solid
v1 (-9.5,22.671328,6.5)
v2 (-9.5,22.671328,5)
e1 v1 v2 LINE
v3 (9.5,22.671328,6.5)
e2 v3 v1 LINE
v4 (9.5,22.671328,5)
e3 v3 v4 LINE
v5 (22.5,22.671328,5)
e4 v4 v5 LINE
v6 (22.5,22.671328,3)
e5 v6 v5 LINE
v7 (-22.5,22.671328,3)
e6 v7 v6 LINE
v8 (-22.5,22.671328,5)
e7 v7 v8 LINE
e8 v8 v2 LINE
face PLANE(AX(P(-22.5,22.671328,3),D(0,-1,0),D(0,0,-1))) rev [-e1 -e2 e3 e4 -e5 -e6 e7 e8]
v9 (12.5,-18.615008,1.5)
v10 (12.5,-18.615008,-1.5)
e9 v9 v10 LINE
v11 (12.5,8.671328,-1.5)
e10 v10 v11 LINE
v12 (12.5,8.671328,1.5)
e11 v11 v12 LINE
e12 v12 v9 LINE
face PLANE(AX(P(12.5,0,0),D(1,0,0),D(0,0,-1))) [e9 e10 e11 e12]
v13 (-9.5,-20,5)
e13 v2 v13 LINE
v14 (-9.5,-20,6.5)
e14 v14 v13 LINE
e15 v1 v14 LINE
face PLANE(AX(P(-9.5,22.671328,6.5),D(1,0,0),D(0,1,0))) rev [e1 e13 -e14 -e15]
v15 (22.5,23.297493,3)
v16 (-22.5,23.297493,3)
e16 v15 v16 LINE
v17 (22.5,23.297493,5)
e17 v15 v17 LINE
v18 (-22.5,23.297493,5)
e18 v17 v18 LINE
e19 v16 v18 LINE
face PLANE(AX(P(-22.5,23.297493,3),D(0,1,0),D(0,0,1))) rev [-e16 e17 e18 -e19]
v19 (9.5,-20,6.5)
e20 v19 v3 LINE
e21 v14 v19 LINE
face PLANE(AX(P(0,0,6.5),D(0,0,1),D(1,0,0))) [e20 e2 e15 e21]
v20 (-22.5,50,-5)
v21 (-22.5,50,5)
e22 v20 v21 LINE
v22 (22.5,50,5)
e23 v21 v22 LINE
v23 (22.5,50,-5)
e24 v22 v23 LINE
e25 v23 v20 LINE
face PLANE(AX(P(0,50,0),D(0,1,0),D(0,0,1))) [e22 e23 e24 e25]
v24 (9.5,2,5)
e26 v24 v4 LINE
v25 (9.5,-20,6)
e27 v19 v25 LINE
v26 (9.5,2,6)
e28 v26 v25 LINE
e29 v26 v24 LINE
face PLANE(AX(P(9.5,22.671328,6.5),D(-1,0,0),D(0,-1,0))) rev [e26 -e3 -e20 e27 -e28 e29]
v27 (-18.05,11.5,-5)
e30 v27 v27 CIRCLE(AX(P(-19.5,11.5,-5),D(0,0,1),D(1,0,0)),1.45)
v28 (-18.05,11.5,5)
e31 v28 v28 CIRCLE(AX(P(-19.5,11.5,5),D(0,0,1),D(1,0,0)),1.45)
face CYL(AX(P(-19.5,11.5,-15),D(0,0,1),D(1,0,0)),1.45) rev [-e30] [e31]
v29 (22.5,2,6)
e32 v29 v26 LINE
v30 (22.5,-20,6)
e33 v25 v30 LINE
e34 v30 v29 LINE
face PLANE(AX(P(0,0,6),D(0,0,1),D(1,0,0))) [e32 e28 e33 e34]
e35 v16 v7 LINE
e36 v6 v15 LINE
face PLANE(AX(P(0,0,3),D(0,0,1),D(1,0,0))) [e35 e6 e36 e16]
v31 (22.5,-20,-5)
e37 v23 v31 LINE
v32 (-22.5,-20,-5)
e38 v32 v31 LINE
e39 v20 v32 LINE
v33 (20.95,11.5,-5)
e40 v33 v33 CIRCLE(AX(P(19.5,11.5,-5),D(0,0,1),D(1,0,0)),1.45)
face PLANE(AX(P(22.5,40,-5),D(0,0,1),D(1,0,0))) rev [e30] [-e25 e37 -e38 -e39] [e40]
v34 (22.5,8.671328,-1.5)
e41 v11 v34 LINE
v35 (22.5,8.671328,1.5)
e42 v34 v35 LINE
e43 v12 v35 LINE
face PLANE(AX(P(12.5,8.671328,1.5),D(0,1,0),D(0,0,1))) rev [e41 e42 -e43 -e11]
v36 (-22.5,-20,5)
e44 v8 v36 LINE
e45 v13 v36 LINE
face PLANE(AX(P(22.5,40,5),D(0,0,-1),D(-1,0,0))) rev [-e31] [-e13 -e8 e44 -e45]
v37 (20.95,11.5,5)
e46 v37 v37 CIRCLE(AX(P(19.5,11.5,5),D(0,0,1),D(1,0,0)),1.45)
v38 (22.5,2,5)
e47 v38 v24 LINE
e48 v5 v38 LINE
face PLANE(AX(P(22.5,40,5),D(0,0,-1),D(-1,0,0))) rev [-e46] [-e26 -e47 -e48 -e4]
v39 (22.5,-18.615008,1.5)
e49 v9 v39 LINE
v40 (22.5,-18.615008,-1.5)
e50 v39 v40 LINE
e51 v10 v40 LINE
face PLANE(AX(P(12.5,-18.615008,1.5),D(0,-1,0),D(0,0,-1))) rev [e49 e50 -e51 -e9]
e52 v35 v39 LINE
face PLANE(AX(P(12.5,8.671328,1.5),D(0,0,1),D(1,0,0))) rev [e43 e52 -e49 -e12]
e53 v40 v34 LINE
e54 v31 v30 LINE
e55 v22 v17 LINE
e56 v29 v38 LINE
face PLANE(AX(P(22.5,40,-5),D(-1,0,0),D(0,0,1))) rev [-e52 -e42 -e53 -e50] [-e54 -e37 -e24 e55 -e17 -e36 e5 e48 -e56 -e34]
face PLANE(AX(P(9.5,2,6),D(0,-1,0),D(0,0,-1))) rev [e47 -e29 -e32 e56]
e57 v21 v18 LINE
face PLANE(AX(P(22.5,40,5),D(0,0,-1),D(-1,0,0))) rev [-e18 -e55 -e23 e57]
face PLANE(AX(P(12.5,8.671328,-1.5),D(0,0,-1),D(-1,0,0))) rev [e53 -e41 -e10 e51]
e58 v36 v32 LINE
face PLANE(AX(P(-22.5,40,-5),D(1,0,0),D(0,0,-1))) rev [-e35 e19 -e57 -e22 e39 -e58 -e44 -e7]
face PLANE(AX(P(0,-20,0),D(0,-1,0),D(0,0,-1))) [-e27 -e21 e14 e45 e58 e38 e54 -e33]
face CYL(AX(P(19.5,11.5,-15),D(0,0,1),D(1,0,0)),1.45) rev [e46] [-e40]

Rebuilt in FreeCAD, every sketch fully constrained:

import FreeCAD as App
import Part
import Sketcher
from FreeCAD import Vector

doc = App.newDocument("Part")
body = doc.addObject("PartDesign::Body", "Body")

# Sketch on XZ plane
sketch1 = body.newObject("Sketcher::SketchObject", "Sketch")
sketch1.AttachmentSupport = (doc.getObject("XZ_Plane"), [""])
sketch1.MapMode = "FlatFace"
sketch1.addGeometry([
    Part.LineSegment(Vector(-22, -5, 0), Vector(-22, 5, 0)),
    Part.LineSegment(Vector(-22, 5, 0), Vector(22, 5, 0)),
    Part.LineSegment(Vector(22, 5, 0), Vector(22, -5, 0)),
    Part.LineSegment(Vector(22, -5, 0), Vector(-22, -5, 0)),
], False)
sketch1.addConstraint([
    Sketcher.Constraint("Coincident", 0, 2, 1, 1),
    Sketcher.Constraint("Coincident", 1, 2, 2, 1),
    Sketcher.Constraint("Coincident", 2, 2, 3, 1),
    Sketcher.Constraint("Coincident", 3, 2, 0, 1),
    Sketcher.Constraint("Vertical", 0),
    Sketcher.Constraint("Horizontal", 1),
    Sketcher.Constraint("Vertical", 2),
    Sketcher.Constraint("Horizontal", 3),
    Sketcher.Constraint("Symmetric", 0, 2, 2, 2, -1, 1),
    Sketcher.Constraint("DistanceX", 1, 1, 1, 2, 45.0),
    Sketcher.Constraint("DistanceY", 0, 1, 0, 2, 10.0),
])
pad1 = body.newObject("PartDesign::Pad", "Pad")
pad1.Profile = sketch1
pad1.Length = 40
pad1.Reversed = True

# Sketch on XZ plane
sketch2 = body.newObject("Sketcher::SketchObject", "Sketch001")
sketch2.AttachmentSupport = (doc.getObject("XZ_Plane"), [""])
sketch2.MapMode = "FlatFace"
sketch2.AttachmentOffset = App.Placement(Vector(0, 0, -40), App.Rotation())
sketch2.addGeometry([
    Part.LineSegment(Vector(-22, -5, 0), Vector(-22, 5, 0)),
    Part.LineSegment(Vector(-22, 5, 0), Vector(22, 5, 0)),
    Part.LineSegment(Vector(22, 5, 0), Vector(22, -5, 0)),
    Part.LineSegment(Vector(22, -5, 0), Vector(-22, -5, 0)),
], False)
sketch2.addConstraint([
    Sketcher.Constraint("Coincident", 0, 2, 1, 1),
    Sketcher.Constraint("Coincident", 1, 2, 2, 1),
    Sketcher.Constraint("Coincident", 2, 2, 3, 1),
    Sketcher.Constraint("Coincident", 3, 2, 0, 1),
    Sketcher.Constraint("Vertical", 0),
    Sketcher.Constraint("Horizontal", 1),
    Sketcher.Constraint("Vertical", 2),
    Sketcher.Constraint("Horizontal", 3),
    Sketcher.Constraint("Symmetric", 0, 2, 2, 2, -1, 1),
    Sketcher.Constraint("DistanceX", 1, 1, 1, 2, 45.0),
    Sketcher.Constraint("DistanceY", 0, 1, 0, 2, 10.0),
])
pad2 = body.newObject("PartDesign::Pad", "Pad001")
pad2.Profile = sketch2
pad2.Length = 10
pad2.Reversed = True

# Sketch on XZ plane
sketch3 = body.newObject("Sketcher::SketchObject", "Sketch002")
sketch3.AttachmentSupport = (doc.getObject("XZ_Plane"), [""])
sketch3.MapMode = "FlatFace"
sketch3.addGeometry([
    Part.LineSegment(Vector(-22, 5, 0), Vector(-22, -5, 0)),
    Part.LineSegment(Vector(-22, -5, 0), Vector(22, -5, 0)),
    Part.LineSegment(Vector(22, -5, 0), Vector(22, 5, 0)),
    Part.LineSegment(Vector(22, 5, 0), Vector(-22, 5, 0)),
], False)
sketch3.addConstraint([
    Sketcher.Constraint("Coincident", 0, 2, 1, 1),
    Sketcher.Constraint("Coincident", 1, 2, 2, 1),
    Sketcher.Constraint("Coincident", 2, 2, 3, 1),
    Sketcher.Constraint("Coincident", 3, 2, 0, 1),
    Sketcher.Constraint("Vertical", 0),
    Sketcher.Constraint("Horizontal", 1),
    Sketcher.Constraint("Vertical", 2),
    Sketcher.Constraint("Horizontal", 3),
    Sketcher.Constraint("Symmetric", 0, 2, 2, 2, -1, 1),
    Sketcher.Constraint("DistanceX", 1, 1, 1, 2, 45.0),
    Sketcher.Constraint("DistanceY", 0, 2, 0, 1, 10.0),
])
pad3 = body.newObject("PartDesign::Pad", "Pad002")
pad3.Profile = sketch3
pad3.Length = 20

# Sketch on XY plane
sketch4 = body.newObject("Sketcher::SketchObject", "Sketch003")
sketch4.AttachmentSupport = (doc.getObject("XY_Plane"), [""])
sketch4.MapMode = "FlatFace"
sketch4.AttachmentOffset = App.Placement(Vector(0, 0, 5), App.Rotation())
sketch4.addGeometry([
    Part.Circle(Vector(19.5, 11.5, 0), Vector(0, 0, 1), 1.4),
    Part.Circle(Vector(-19.5, 11.5, 0), Vector(0, 0, 1), 1.4),
], False)
sketch4.addConstraint([
    Sketcher.Constraint("Equal", 0, 1),
    Sketcher.Constraint("Symmetric", 0, 3, 1, 3, -2),
    Sketcher.Constraint("Diameter", 0, 2.9),
    Sketcher.Constraint("DistanceX", 1, 3, 0, 3, 39.0),
    Sketcher.Constraint("DistanceY", -1, 1, 0, 3, 11.5),
])
pocket1 = body.newObject("PartDesign::Pocket", "Pocket")
pocket1.Profile = sketch4
pocket1.Length = 20

# Sketch on XY plane
sketch5 = body.newObject("Sketcher::SketchObject", "Sketch004")
sketch5.AttachmentSupport = (doc.getObject("XY_Plane"), [""])
sketch5.MapMode = "FlatFace"
sketch5.AttachmentOffset = App.Placement(Vector(0, 0, 5), App.Rotation())
sketch5.addGeometry([
    Part.LineSegment(Vector(-22.5, 23.3, 0), Vector(-22.5, 22.7, 0)),
    Part.LineSegment(Vector(-22.5, 22.7, 0), Vector(22.5, 22.7, 0)),
    Part.LineSegment(Vector(22.5, 22.7, 0), Vector(22.5, 23.3, 0)),
    Part.LineSegment(Vector(22.5, 23.3, 0), Vector(-22.5, 23.3, 0)),
], False)
sketch5.addConstraint([
    Sketcher.Constraint("Coincident", 0, 2, 1, 1),
    Sketcher.Constraint("Coincident", 1, 2, 2, 1),
    Sketcher.Constraint("Coincident", 2, 2, 3, 1),
    Sketcher.Constraint("Coincident", 3, 2, 0, 1),
    Sketcher.Constraint("Vertical", 0),
    Sketcher.Constraint("Horizontal", 1),
    Sketcher.Constraint("Vertical", 2),
    Sketcher.Constraint("Horizontal", 3),
    Sketcher.Constraint("DistanceX", 1, 1, 1, 2, 45.0),
    Sketcher.Constraint("DistanceX", 0, 2, -1, 1, 22.5),
    Sketcher.Constraint("DistanceY", 0, 2, 0, 1, 0.626165),
    Sketcher.Constraint("DistanceY", -1, 1, 0, 2, 22.671328),
])
pocket2 = body.newObject("PartDesign::Pocket", "Pocket001")
pocket2.Profile = sketch5
pocket2.Length = 2

# Sketch on XY plane
sketch6 = body.newObject("Sketcher::SketchObject", "Sketch005")
sketch6.AttachmentSupport = (doc.getObject("XY_Plane"), [""])
sketch6.MapMode = "FlatFace"
sketch6.AttachmentOffset = App.Placement(Vector(0, 0, 5), App.Rotation())
sketch6.addGeometry([
    Part.LineSegment(Vector(-10, 23, 0), Vector(-10, -20, 0)),
    Part.LineSegment(Vector(-10, -20, 0), Vector(10, -20, 0)),
    Part.LineSegment(Vector(10, -20, 0), Vector(10, 23, 0)),
    Part.LineSegment(Vector(10, 23, 0), Vector(-10, 23, 0)),
], False)
sketch6.addConstraint([
    Sketcher.Constraint("Coincident", 0, 2, 1, 1),
    Sketcher.Constraint("Coincident", 1, 2, 2, 1),
    Sketcher.Constraint("Coincident", 2, 2, 3, 1),
    Sketcher.Constraint("Coincident", 3, 2, 0, 1),
    Sketcher.Constraint("Vertical", 0),
    Sketcher.Constraint("Horizontal", 1),
    Sketcher.Constraint("Vertical", 2),
    Sketcher.Constraint("Horizontal", 3),
    Sketcher.Constraint("DistanceX", 1, 1, 1, 2, 19.0),
    Sketcher.Constraint("DistanceY", 0, 2, -1, 1, 20.0),
    Sketcher.Constraint("DistanceX", 0, 2, -1, 1, 9.5),
    Sketcher.Constraint("DistanceY", 0, 2, 0, 1, 42.671328),
])
pad4 = body.newObject("PartDesign::Pad", "Pad003")
pad4.Profile = sketch6
pad4.Length = 1.5

# Sketch on YZ plane
sketch7 = body.newObject("Sketcher::SketchObject", "Sketch006")
sketch7.AttachmentSupport = (doc.getObject("YZ_Plane"), [""])
sketch7.MapMode = "FlatFace"
sketch7.AttachmentOffset = App.Placement(Vector(0, 0, 22.5), App.Rotation())
sketch7.addGeometry([
    Part.LineSegment(Vector(8.7, 1.5, 0), Vector(-18.6, 1.5, 0)),
    Part.LineSegment(Vector(-18.6, 1.5, 0), Vector(-18.6, -1.5, 0)),
    Part.LineSegment(Vector(-18.6, -1.5, 0), Vector(8.7, -1.5, 0)),
    Part.LineSegment(Vector(8.7, -1.5, 0), Vector(8.7, 1.5, 0)),
], False)
sketch7.addConstraint([
    Sketcher.Constraint("Coincident", 0, 2, 1, 1),
    Sketcher.Constraint("Coincident", 1, 2, 2, 1),
    Sketcher.Constraint("Coincident", 2, 2, 3, 1),
    Sketcher.Constraint("Coincident", 3, 2, 0, 1),
    Sketcher.Constraint("Horizontal", 0),
    Sketcher.Constraint("Vertical", 1),
    Sketcher.Constraint("Horizontal", 2),
    Sketcher.Constraint("Vertical", 3),
    Sketcher.Constraint("DistanceY", 1, 2, 1, 1, 3.0),
    Sketcher.Constraint("DistanceY", -1, 1, 0, 2, 1.5),
    Sketcher.Constraint("DistanceX", 0, 2, 0, 1, 27.286336),
    Sketcher.Constraint("DistanceX", 0, 2, -1, 1, 18.615008),
])
pocket3 = body.newObject("PartDesign::Pocket", "Pocket002")
pocket3.Profile = sketch7
pocket3.Length = 10

# Sketch on XY plane
sketch8 = body.newObject("Sketcher::SketchObject", "Sketch007")
sketch8.AttachmentSupport = (doc.getObject("XY_Plane"), [""])
sketch8.MapMode = "FlatFace"
sketch8.AttachmentOffset = App.Placement(Vector(0, 0, 5), App.Rotation())
sketch8.addGeometry([
    Part.LineSegment(Vector(10, 2, 0), Vector(10, -20, 0)),
    Part.LineSegment(Vector(10, -20, 0), Vector(22, -20, 0)),
    Part.LineSegment(Vector(22, -20, 0), Vector(22, 2, 0)),
    Part.LineSegment(Vector(22, 2, 0), Vector(10, 2, 0)),
], False)
sketch8.addConstraint([
    Sketcher.Constraint("Coincident", 0, 2, 1, 1),
    Sketcher.Constraint("Coincident", 1, 2, 2, 1),
    Sketcher.Constraint("Coincident", 2, 2, 3, 1),
    Sketcher.Constraint("Coincident", 3, 2, 0, 1),
    Sketcher.Constraint("Vertical", 0),
    Sketcher.Constraint("Horizontal", 1),
    Sketcher.Constraint("Vertical", 2),
    Sketcher.Constraint("Horizontal", 3),
    Sketcher.Constraint("DistanceX", 1, 1, 1, 2, 13.0),
    Sketcher.Constraint("DistanceY", 0, 2, 0, 1, 22.0),
    Sketcher.Constraint("DistanceY", 0, 2, -1, 1, 20.0),
    Sketcher.Constraint("DistanceX", -1, 1, 0, 2, 9.5),
])
pad5 = body.newObject("PartDesign::Pad", "Pad004")
pad5.Profile = sketch8
pad5.Length = 1

doc.recompute()
